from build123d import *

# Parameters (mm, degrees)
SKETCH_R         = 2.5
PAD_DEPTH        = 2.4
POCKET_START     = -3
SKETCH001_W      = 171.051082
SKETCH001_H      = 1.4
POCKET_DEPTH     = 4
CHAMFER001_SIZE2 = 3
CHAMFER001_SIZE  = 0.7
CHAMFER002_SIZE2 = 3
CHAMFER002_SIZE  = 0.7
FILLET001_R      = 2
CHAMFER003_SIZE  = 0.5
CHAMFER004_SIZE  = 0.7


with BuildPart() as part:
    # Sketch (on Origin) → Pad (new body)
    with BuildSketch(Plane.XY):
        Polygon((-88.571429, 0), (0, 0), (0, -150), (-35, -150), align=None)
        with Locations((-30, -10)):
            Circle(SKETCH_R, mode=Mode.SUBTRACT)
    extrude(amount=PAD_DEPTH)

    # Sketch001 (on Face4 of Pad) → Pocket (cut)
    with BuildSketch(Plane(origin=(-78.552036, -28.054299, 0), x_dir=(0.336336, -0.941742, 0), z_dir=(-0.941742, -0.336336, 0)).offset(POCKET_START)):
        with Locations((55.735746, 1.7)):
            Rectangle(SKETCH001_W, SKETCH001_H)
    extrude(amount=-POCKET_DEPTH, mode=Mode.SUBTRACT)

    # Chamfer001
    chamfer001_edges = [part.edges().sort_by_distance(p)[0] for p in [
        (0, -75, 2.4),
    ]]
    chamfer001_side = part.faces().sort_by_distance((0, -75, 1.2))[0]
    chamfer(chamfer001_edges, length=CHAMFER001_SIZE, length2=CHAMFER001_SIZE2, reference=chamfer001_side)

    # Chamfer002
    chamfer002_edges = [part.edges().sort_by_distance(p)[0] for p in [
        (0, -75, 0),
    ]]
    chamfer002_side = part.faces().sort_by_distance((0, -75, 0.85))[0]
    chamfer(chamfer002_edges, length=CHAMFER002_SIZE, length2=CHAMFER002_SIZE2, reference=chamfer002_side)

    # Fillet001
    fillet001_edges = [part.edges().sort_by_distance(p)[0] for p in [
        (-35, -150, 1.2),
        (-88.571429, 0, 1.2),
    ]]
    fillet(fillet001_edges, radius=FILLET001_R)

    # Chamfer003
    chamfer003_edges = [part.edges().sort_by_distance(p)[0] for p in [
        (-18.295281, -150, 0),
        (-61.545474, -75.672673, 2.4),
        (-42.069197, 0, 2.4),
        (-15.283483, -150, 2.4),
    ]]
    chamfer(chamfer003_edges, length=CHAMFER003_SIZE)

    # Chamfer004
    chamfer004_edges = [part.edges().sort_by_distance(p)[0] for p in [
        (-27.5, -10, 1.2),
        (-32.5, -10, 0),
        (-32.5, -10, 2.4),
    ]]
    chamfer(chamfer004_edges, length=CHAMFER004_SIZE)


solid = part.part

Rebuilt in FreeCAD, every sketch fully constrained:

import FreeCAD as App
import Part
import Sketcher
Q = App.Units.Quantity


def edges_at(feature, points):
    """Names of the edges that pass closest to the given points."""
    edges = feature.Shape.Edges
    near = lambda p: min(range(len(edges)), key=lambda i: edges[i].distToShape(Part.Vertex(*p))[0])
    return sorted({f"Edge{near(p) + 1}" for p in points})

doc = App.newDocument("Part")
params = doc.addObject("Spreadsheet::Sheet", "Params")
for row, (alias, value) in enumerate([
    ("sketch1_diameter", "5 mm"),
    ("sketch1_width", "35 mm"),
    ("sketch1_height", "150 mm"),
    ("pad1_length", "2.4 mm"),
    ("sketch2_height", "1.4 mm"),
    ("pocket1_length", "4 mm"),
    ("chamfer_size", "0.7 mm"),
    ("chamfer_size2", "3 mm"),
    ("chamfer2_size", "0.7 mm"),
    ("chamfer2_size2", "3 mm"),
    ("fillet_radius", "2 mm"),
    ("chamfer3_size", "0.5 mm"),
    ("chamfer4_size", "0.7 mm"),
], start=1):
    params.set(f"A{row}", alias)
    params.set(f"B{row}", "=" + value)
    params.setAlias(f"B{row}", alias)

body = doc.addObject("PartDesign::Body", "Body")

sketch1 = doc.addObject("Sketcher::SketchObject", "Sketch")
body.addObject(sketch1)
sketch1.AttachmentSupport = (doc.XY_Plane, [""])
sketch1.MapMode = "FlatFace"
sketch1.addGeometry([
    Part.LineSegment(App.Vector(0, 0, 0), App.Vector(-88.6, 0, 0)),
    Part.LineSegment(App.Vector(-88.6, 0, 0), App.Vector(-35, -150, 0)),
    Part.LineSegment(App.Vector(-35, -150, 0), App.Vector(0, -150, 0)),
    Part.LineSegment(App.Vector(0, -150, 0), App.Vector(0, 0, 0)),
    Part.Circle(App.Vector(-30, -10, 0), App.Vector(0, 0, 1), 2.5),
], False)
sketch1.addConstraint([
    Sketcher.Constraint("Coincident", 0, 2, 1, 1),
    Sketcher.Constraint("Coincident", 1, 2, 2, 1),
    Sketcher.Constraint("Coincident", 2, 2, 3, 1),
    Sketcher.Constraint("Coincident", 3, 2, 0, 1),
    Sketcher.Constraint("Horizontal", 0),
    Sketcher.Constraint("Horizontal", 2),
    Sketcher.Constraint("Vertical", 3),
    Sketcher.Constraint("Coincident", 3, 2, -1, 1),
    Sketcher.Constraint("Diameter", 4, Q("5 mm")),
    Sketcher.Constraint("DistanceX", 2, 1, 2, 2, Q("35 mm")),
    Sketcher.Constraint("DistanceY", 3, 1, 3, 2, Q("150 mm")),
    Sketcher.Constraint("DistanceX", 4, 3, -1, 1, Q("30 mm")),
    Sketcher.Constraint("DistanceY", 4, 3, -1, 1, Q("10 mm")),
    Sketcher.Constraint("DistanceX", 0, 2, 0, 1, Q("88.571429 mm")),
])
sketch1.setExpression("Constraints[8]", "Params.sketch1_diameter")
sketch1.setExpression("Constraints[9]", "Params.sketch1_width")
sketch1.setExpression("Constraints[10]", "Params.sketch1_height")
pad1 = doc.addObject("PartDesign::Pad", "Pad")
body.addObject(pad1)
pad1.Profile = sketch1
pad1.setExpression("Length", "Params.pad1_length")

sketch2 = doc.addObject("Sketcher::SketchObject", "Sketch001")
body.addObject(sketch2)
sketch2.Placement = App.Placement(App.Vector(-75.72681, -27.045291, 0), App.Rotation(App.Vector(0.336336017, -0.941742047, 0), App.Vector(0, 0, 0.999999999), App.Vector(-0.941742047, -0.336336017, 0), "ZXY"))
sketch2.addGeometry([
    Part.LineSegment(App.Vector(-29.8, 2.4, 0), App.Vector(-29.8, 1, 0)),
    Part.LineSegment(App.Vector(-29.8, 1, 0), App.Vector(141.3, 1, 0)),
    Part.LineSegment(App.Vector(141.3, 1, 0), App.Vector(141.3, 2.4, 0)),
    Part.LineSegment(App.Vector(141.3, 2.4, 0), App.Vector(-29.8, 2.4, 0)),
], False)
sketch2.addConstraint([
    Sketcher.Constraint("Coincident", 0, 2, 1, 1),
    Sketcher.Constraint("Coincident", 1, 2, 2, 1),
    Sketcher.Constraint("Coincident", 2, 2, 3, 1),
    Sketcher.Constraint("Coincident", 3, 2, 0, 1),
    Sketcher.Constraint("Vertical", 0),
    Sketcher.Constraint("Horizontal", 1),
    Sketcher.Constraint("Vertical", 2),
    Sketcher.Constraint("Horizontal", 3),
    Sketcher.Constraint("DistanceY", 0, 2, 0, 1, Q("1.4 mm")),
    Sketcher.Constraint("DistanceY", -1, 1, 0, 2, Q("1 mm")),
    Sketcher.Constraint("DistanceX", 1, 1, 1, 2, Q("171.051082 mm")),
    Sketcher.Constraint("DistanceX", 0, 2, -1, 1, Q("29.789795 mm")),
])
sketch2.setExpression("Constraints[8]", "Params.sketch2_height")
pocket1 = doc.addObject("PartDesign::Pocket", "Pocket")
body.addObject(pocket1)
pocket1.Profile = sketch2
pocket1.setExpression("Length", "Params.pocket1_length")
doc.recompute()

chamfer = doc.addObject("PartDesign::Chamfer", "Chamfer")
body.addObject(chamfer)
chamfer.Base = (pocket1, edges_at(pocket1, [(0, -75, 2.4)]))
chamfer.ChamferType = "Two distances"
chamfer.setExpression("Size", "Params.chamfer_size")
chamfer.setExpression("Size2", "Params.chamfer_size2")
chamfer.FlipDirection = True
doc.recompute()

chamfer2 = doc.addObject("PartDesign::Chamfer", "Chamfer001")
body.addObject(chamfer2)
chamfer2.Base = (chamfer, edges_at(chamfer, [(0, -75, 0)]))
chamfer2.ChamferType = "Two distances"
chamfer2.setExpression("Size", "Params.chamfer2_size")
chamfer2.setExpression("Size2", "Params.chamfer2_size2")
doc.recompute()

fillet = doc.addObject("PartDesign::Fillet", "Fillet")
body.addObject(fillet)
fillet.Base = (chamfer2, edges_at(chamfer2, [(-35, -150, 1.2), (-88.571, 0, 1.2)]))
fillet.setExpression("Radius", "Params.fillet_radius")
doc.recompute()

chamfer3 = doc.addObject("PartDesign::Chamfer", "Chamfer002")
body.addObject(chamfer3)
chamfer3.Base = (fillet, edges_at(fillet, [
    (-18.295, -150, 0),
    (-61.545, -75.673, 2.4),
    (-42.069, 0, 2.4),
    (-15.284, -150, 2.4),
]))
chamfer3.setExpression("Size", "Params.chamfer3_size")
doc.recompute()

chamfer4 = doc.addObject("PartDesign::Chamfer", "Chamfer003")
body.addObject(chamfer4)
chamfer4.Base = (chamfer3, edges_at(chamfer3, [(-27.5, -10, 1.2), (-32.5, -10, 0), (-32.5, -10, 2.4)]))
chamfer4.setExpression("Size", "Params.chamfer4_size")

doc.recompute()
